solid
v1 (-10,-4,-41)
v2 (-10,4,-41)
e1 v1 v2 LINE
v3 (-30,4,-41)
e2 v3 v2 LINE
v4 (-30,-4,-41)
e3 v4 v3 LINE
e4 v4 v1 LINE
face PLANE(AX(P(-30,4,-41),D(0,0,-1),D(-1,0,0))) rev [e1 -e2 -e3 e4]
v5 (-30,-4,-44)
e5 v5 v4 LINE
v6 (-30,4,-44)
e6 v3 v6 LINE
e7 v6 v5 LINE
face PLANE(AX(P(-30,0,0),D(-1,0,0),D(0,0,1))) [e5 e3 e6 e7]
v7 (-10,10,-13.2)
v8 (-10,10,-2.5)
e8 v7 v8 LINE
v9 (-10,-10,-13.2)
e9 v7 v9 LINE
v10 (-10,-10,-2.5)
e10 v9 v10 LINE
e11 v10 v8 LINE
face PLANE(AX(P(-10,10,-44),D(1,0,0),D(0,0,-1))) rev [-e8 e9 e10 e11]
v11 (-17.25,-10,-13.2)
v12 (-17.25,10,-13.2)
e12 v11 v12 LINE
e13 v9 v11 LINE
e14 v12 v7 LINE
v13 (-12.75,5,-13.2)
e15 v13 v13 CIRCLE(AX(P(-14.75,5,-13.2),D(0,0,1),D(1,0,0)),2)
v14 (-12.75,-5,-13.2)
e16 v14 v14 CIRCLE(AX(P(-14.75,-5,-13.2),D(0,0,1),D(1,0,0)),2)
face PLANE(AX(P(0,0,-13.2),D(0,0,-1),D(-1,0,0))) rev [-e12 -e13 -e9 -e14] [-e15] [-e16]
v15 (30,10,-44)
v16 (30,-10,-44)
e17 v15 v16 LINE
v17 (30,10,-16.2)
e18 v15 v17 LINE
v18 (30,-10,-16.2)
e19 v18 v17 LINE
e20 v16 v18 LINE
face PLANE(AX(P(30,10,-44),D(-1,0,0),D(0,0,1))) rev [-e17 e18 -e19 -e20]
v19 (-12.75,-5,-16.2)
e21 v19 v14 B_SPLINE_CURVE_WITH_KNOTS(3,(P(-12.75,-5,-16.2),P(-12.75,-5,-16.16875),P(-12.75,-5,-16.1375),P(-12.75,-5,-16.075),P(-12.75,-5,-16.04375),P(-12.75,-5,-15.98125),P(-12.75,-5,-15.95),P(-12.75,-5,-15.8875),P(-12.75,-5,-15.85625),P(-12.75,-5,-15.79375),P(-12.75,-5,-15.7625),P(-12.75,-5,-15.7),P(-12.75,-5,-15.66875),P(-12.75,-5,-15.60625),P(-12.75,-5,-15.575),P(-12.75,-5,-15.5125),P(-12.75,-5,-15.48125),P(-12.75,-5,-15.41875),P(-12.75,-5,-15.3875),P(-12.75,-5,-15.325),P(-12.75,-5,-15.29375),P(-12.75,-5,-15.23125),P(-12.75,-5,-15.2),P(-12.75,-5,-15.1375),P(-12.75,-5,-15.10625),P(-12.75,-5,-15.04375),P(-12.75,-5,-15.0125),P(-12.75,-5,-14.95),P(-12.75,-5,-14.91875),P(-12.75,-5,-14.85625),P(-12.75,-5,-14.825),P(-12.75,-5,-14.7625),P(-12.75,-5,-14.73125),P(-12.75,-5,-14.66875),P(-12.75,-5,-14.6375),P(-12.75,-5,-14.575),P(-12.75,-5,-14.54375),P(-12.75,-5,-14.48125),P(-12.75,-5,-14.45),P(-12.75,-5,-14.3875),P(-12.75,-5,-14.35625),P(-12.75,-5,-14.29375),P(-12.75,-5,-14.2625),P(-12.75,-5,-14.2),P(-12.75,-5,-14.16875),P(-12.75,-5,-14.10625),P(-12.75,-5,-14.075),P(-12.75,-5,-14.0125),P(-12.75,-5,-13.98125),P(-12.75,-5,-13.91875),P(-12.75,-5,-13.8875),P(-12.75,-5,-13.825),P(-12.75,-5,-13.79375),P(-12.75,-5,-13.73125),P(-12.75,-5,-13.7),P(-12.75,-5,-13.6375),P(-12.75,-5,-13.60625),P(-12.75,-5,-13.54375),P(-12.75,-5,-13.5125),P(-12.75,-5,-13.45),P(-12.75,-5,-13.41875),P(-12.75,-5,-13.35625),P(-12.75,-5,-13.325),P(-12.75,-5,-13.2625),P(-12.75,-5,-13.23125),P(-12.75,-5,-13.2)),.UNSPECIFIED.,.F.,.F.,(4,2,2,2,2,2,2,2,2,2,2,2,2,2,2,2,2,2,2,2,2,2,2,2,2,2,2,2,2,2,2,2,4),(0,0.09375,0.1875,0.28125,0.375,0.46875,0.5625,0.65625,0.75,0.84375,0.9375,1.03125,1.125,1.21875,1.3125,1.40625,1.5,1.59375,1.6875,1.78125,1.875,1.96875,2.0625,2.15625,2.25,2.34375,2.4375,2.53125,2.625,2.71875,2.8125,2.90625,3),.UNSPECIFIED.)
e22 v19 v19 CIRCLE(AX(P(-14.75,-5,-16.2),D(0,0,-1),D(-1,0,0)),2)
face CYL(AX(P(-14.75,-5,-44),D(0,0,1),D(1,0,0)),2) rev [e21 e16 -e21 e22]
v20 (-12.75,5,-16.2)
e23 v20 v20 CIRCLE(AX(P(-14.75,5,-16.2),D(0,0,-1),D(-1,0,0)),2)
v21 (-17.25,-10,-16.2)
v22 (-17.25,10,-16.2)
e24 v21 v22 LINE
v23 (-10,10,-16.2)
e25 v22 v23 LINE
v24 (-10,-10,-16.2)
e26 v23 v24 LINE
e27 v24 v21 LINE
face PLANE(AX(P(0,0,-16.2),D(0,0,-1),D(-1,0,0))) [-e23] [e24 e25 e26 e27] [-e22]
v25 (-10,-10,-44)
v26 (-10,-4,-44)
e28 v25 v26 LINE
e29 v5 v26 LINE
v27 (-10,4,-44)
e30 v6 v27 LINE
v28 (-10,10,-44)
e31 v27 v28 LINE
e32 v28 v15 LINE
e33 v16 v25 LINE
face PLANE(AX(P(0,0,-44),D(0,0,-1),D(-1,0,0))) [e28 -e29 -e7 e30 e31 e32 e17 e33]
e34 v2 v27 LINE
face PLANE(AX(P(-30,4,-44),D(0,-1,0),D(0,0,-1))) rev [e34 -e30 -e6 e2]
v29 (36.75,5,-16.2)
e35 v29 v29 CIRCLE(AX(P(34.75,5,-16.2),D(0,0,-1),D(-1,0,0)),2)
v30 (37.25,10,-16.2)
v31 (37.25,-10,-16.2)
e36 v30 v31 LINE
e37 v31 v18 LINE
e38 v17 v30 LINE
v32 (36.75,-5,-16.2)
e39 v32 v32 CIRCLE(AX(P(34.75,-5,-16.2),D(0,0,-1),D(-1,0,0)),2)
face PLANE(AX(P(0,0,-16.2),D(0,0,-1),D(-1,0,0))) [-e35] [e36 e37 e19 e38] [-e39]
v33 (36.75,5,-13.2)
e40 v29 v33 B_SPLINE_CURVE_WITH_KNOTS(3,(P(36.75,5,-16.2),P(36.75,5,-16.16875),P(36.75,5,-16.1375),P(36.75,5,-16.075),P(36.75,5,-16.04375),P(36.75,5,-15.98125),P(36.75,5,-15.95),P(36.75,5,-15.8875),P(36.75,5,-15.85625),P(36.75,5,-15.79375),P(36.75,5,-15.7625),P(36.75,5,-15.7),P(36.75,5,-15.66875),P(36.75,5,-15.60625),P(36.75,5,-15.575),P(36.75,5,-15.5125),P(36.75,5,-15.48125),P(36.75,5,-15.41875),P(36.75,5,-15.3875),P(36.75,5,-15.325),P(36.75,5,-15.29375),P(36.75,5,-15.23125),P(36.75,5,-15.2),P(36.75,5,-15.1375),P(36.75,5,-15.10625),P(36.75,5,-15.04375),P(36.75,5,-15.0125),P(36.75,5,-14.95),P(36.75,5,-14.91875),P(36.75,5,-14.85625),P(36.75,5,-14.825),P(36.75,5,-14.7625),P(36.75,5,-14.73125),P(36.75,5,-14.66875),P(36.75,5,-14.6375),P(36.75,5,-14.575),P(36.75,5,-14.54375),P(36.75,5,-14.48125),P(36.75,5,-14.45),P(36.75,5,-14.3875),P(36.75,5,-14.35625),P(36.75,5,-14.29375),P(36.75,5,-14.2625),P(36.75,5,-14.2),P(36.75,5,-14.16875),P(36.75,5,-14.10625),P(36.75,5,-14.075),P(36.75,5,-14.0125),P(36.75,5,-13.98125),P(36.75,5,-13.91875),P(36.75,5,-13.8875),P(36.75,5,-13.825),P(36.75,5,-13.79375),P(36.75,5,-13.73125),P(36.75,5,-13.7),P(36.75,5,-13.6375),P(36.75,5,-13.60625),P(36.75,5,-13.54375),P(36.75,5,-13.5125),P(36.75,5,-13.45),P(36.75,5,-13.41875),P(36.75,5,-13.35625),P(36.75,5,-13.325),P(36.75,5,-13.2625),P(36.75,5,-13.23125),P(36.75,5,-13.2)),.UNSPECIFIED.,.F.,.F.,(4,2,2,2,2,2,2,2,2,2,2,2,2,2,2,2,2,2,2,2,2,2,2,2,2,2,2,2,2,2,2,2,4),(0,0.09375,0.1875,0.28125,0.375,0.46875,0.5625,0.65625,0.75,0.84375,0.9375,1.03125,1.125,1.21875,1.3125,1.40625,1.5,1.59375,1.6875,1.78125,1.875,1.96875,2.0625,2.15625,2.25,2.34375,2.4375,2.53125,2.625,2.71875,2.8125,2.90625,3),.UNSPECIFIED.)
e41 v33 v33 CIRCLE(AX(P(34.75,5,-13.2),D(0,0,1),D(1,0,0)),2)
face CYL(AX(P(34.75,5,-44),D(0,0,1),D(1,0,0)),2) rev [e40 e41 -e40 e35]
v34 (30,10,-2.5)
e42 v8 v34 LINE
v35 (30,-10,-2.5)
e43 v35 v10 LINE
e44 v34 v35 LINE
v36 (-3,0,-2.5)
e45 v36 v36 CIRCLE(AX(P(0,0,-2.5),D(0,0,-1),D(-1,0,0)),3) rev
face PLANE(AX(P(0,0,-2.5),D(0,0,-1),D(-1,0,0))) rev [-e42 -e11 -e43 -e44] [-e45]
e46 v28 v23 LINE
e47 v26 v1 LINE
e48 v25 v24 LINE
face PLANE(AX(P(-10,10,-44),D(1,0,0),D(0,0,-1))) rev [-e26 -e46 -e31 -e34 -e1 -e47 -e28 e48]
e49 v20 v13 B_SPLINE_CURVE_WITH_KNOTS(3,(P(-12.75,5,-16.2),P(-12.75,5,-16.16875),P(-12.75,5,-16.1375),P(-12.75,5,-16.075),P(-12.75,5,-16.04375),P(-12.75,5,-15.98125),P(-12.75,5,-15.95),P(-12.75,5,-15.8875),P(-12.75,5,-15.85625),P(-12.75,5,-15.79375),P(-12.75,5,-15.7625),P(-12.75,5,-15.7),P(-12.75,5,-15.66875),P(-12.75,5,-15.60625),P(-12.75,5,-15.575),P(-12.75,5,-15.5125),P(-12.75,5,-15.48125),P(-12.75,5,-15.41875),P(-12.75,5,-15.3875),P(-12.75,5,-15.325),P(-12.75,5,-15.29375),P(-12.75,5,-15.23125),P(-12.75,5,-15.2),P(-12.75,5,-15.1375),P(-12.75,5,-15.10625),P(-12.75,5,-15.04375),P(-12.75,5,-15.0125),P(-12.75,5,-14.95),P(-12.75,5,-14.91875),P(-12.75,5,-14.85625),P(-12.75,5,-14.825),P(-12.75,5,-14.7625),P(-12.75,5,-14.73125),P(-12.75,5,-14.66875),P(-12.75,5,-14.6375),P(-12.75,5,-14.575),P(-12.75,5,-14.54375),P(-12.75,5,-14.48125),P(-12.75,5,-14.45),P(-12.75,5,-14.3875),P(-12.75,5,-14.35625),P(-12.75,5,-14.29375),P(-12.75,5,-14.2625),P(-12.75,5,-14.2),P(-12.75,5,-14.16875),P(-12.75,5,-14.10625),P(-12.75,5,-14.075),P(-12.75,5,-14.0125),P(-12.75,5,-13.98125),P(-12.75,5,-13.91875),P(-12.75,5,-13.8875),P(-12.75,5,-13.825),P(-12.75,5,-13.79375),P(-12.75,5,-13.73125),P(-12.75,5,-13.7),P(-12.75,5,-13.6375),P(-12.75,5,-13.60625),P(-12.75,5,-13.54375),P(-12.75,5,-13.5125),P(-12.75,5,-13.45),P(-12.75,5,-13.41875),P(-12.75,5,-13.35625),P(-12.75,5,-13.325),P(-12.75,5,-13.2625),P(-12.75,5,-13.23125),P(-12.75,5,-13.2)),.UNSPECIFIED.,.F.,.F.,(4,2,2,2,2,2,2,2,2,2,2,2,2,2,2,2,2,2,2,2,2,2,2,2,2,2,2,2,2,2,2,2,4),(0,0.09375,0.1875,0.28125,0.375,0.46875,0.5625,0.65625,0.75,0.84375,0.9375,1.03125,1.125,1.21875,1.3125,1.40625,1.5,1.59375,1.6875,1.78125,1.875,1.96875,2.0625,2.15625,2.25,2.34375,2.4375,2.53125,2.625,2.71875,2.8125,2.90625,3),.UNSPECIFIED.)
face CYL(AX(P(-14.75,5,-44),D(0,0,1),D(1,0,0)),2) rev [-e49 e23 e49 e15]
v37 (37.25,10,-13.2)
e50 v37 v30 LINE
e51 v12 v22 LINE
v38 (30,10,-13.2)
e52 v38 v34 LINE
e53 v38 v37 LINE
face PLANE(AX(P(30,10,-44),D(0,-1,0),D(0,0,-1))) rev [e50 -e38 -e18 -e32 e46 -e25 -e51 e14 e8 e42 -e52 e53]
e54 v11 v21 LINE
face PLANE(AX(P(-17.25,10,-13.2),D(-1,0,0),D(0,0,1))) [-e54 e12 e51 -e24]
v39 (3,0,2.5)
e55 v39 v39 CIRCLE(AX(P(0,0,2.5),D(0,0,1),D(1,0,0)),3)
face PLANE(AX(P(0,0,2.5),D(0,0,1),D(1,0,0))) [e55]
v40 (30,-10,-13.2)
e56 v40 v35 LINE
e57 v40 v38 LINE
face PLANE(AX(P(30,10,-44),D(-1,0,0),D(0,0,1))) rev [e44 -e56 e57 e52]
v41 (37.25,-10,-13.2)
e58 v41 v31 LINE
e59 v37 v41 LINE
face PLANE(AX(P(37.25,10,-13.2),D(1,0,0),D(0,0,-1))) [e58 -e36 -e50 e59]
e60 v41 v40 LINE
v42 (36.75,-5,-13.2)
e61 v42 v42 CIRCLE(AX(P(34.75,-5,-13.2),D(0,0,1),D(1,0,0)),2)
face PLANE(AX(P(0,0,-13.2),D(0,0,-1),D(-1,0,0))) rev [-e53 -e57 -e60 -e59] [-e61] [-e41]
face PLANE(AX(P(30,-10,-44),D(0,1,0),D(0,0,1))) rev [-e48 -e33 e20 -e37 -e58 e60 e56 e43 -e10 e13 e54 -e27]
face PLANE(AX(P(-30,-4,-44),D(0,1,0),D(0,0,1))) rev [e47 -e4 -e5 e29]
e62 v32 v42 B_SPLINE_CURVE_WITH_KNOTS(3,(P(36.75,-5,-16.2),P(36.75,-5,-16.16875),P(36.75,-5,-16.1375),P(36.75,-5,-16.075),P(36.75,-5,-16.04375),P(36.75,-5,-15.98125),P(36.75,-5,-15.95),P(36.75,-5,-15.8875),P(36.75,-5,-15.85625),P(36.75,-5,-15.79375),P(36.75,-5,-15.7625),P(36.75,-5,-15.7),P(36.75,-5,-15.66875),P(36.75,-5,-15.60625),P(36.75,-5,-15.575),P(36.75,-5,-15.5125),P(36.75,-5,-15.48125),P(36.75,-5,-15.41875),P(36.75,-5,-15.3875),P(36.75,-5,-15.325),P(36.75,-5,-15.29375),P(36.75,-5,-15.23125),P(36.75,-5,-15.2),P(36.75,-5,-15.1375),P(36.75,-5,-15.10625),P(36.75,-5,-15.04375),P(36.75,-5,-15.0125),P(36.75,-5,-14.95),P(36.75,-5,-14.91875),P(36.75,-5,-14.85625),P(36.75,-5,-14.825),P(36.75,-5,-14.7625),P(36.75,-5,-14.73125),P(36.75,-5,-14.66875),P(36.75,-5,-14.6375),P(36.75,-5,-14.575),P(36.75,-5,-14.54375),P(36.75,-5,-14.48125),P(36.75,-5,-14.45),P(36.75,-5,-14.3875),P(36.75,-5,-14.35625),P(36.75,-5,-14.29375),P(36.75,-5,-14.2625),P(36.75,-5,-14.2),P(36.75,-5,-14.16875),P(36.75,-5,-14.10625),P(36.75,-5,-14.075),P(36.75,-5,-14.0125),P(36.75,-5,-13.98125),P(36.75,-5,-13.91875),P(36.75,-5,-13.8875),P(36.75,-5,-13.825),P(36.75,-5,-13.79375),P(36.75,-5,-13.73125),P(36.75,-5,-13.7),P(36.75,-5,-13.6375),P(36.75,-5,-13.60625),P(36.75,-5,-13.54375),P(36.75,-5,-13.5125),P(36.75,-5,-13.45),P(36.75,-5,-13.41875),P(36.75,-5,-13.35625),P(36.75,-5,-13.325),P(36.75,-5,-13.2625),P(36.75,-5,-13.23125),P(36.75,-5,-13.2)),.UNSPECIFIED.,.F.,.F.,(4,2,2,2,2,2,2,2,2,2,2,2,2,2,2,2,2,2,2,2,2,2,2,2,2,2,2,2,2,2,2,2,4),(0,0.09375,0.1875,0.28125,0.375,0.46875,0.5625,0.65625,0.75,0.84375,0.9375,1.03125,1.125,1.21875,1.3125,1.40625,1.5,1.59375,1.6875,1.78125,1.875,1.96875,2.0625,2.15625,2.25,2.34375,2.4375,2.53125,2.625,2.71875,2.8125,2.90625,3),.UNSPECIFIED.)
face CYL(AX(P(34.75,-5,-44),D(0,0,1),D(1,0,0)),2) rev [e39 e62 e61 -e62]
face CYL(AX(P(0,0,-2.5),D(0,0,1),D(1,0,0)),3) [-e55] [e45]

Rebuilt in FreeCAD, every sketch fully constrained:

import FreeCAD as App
import Part
import Sketcher

V = App.Vector

doc = App.newDocument("Part")
body = doc.addObject("PartDesign::Body", "Body")

sketch1 = body.newObject("Sketcher::SketchObject", "Sketch")
sketch1.AttachmentSupport = (doc.getObject("XY_Plane"), [""])
sketch1.MapMode = "FlatFace"
sketch1.addGeometry(Part.Circle(V(0, 0, 0), V(0, 0, 1), 3), False)
sketch1.addConstraint([
    Sketcher.Constraint("Coincident", 0, 3, -1, 1),
    Sketcher.Constraint("Diameter", 0, 6.0),
])
pad1 = body.newObject("PartDesign::Pad", "Pad")
pad1.Profile = sketch1
pad1.Length = 5
pad1.Midplane = True

sketch2 = body.newObject("Sketcher::SketchObject", "Sketch001")
sketch2.AttachmentSupport = (doc.getObject("XY_Plane"), [""])
sketch2.MapMode = "FlatFace"
sketch2.AttachmentOffset = App.Placement(V(0, 0, -2.5), App.Rotation())
sketch2.addGeometry([
    Part.LineSegment(V(30, 10, 0), V(30, -10, 0)),
    Part.LineSegment(V(30, -10, 0), V(-10, -10, 0)),
    Part.LineSegment(V(-10, -10, 0), V(-10, 10, 0)),
    Part.LineSegment(V(-10, 10, 0), V(30, 10, 0)),
], False)
sketch2.addConstraint([
    Sketcher.Constraint("Coincident", 0, 2, 1, 1),
    Sketcher.Constraint("Coincident", 1, 2, 2, 1),
    Sketcher.Constraint("Coincident", 2, 2, 3, 1),
    Sketcher.Constraint("Coincident", 3, 2, 0, 1),
    Sketcher.Constraint("Vertical", 0),
    Sketcher.Constraint("Horizontal", 1),
    Sketcher.Constraint("Vertical", 2),
    Sketcher.Constraint("Horizontal", 3),
    Sketcher.Constraint("DistanceX", 1, 2, 1, 1, 40.0),
    Sketcher.Constraint("DistanceY", 0, 2, 0, 1, 20.0),
    Sketcher.Constraint("DistanceX", -1, 1, 0, 2, 30.0),
    Sketcher.Constraint("DistanceY", 0, 2, -1, 1, 10.0),
])
pad2 = body.newObject("PartDesign::Pad", "Pad001")
pad2.Profile = sketch2
pad2.Length = 41.5
pad2.Reversed = True

sketch3 = body.newObject("Sketcher::SketchObject", "Sketch002")
sketch3.AttachmentSupport = (doc.getObject("XY_Plane"), [""])
sketch3.MapMode = "FlatFace"
sketch3.AttachmentOffset = App.Placement(V(0, 0, -16.2), App.Rotation())
sketch3.addGeometry([
    Part.LineSegment(V(37, 10, 0), V(37, -10, 0)),
    Part.LineSegment(V(37, -10, 0), V(30, -10, 0)),
    Part.LineSegment(V(30, -10, 0), V(30, 10, 0)),
    Part.LineSegment(V(30, 10, 0), V(37, 10, 0)),
    Part.LineSegment(V(-10, 10, 0), V(-10, -10, 0)),
    Part.LineSegment(V(-10, -10, 0), V(-17, -10, 0)),
    Part.LineSegment(V(-17, -10, 0), V(-17, 10, 0)),
    Part.LineSegment(V(-17, 10, 0), V(-10, 10, 0)),
], False)
sketch3.addConstraint([
    Sketcher.Constraint("Coincident", 0, 2, 1, 1),
    Sketcher.Constraint("Coincident", 1, 2, 2, 1),
    Sketcher.Constraint("Coincident", 2, 2, 3, 1),
    Sketcher.Constraint("Coincident", 3, 2, 0, 1),
    Sketcher.Constraint("Coincident", 4, 2, 5, 1),
    Sketcher.Constraint("Coincident", 5, 2, 6, 1),
    Sketcher.Constraint("Coincident", 6, 2, 7, 1),
    Sketcher.Constraint("Coincident", 7, 2, 4, 1),
    Sketcher.Constraint("Vertical", 0),
    Sketcher.Constraint("Horizontal", 1),
    Sketcher.Constraint("Vertical", 2),
    Sketcher.Constraint("Horizontal", 3),
    Sketcher.Constraint("Vertical", 4),
    Sketcher.Constraint("Horizontal", 5),
    Sketcher.Constraint("Vertical", 6),
    Sketcher.Constraint("Horizontal", 7),
    Sketcher.Constraint("Horizontal", 1, 2, 4, 2),
    Sketcher.Constraint("Horizontal", 3, 2, 6, 2),
    Sketcher.Constraint("Equal", 3, 5),
    Sketcher.Constraint("DistanceY", 0, 2, 0, 1, 20.0),
    Sketcher.Constraint("DistanceY", 0, 2, -1, 1, 10.0),
    Sketcher.Constraint("DistanceX", -1, 1, 1, 2, 30.0),
    Sketcher.Constraint("DistanceX", 4, 2, -1, 1, 10.0),
    Sketcher.Constraint("DistanceX", 1, 2, 1, 1, 7.25),
])
pad3 = body.newObject("PartDesign::Pad", "Pad002")
pad3.Profile = sketch3
pad3.Length = 3

sketch4 = body.newObject("Sketcher::SketchObject", "Sketch003")
sketch4.AttachmentSupport = (doc.getObject("XY_Plane"), [""])
sketch4.MapMode = "FlatFace"
sketch4.AttachmentOffset = App.Placement(V(0, 0, -13.2), App.Rotation())
sketch4.addGeometry([
    Part.Circle(V(-14.8, -5, 0), V(0, 0, 1), 2),
    Part.Circle(V(-14.8, 5, 0), V(0, 0, 1), 2),
    Part.Circle(V(34.8, 5, 0), V(0, 0, 1), 2),
    Part.Circle(V(34.8, -5, 0), V(0, 0, 1), 2),
], False)
sketch4.addConstraint([
    Sketcher.Constraint("Equal", 0, 1),
    Sketcher.Constraint("Equal", 1, 2),
    Sketcher.Constraint("Equal", 2, 3),
    Sketcher.Constraint("Symmetric", 0, 3, 1, 3, -1),
    Sketcher.Constraint("Symmetric", 2, 3, 3, 3, -1),
    Sketcher.Constraint("Horizontal", 1, 3, 2, 3),
    Sketcher.Constraint("Diameter", 0, 4.0),
    Sketcher.Constraint("DistanceY", 0, 3, -1, 1, 5.0),
    Sketcher.Constraint("DistanceX", 1, 3, 2, 3, 49.5),
    Sketcher.Constraint("DistanceX", 0, 3, -1, 1, 14.75),
])
pocket1 = body.newObject("PartDesign::Pocket", "Pocket")
pocket1.Profile = sketch4
pocket1.Type = "ThroughAll"

sketch5 = body.newObject("Sketcher::SketchObject", "Sketch004")
sketch5.AttachmentSupport = (doc.getObject("YZ_Plane"), [""])
sketch5.MapMode = "FlatFace"
sketch5.AttachmentOffset = App.Placement(V(0, 0, -10), App.Rotation())
sketch5.addGeometry([
    Part.LineSegment(V(4, -44, 0), V(-4, -44, 0)),
    Part.LineSegment(V(-4, -44, 0), V(-4, -41, 0)),
    Part.LineSegment(V(-4, -41, 0), V(4, -41, 0)),
    Part.LineSegment(V(4, -41, 0), V(4, -44, 0)),
], False)
sketch5.addConstraint([
    Sketcher.Constraint("Coincident", 0, 2, 1, 1),
    Sketcher.Constraint("Coincident", 1, 2, 2, 1),
    Sketcher.Constraint("Coincident", 2, 2, 3, 1),
    Sketcher.Constraint("Coincident", 3, 2, 0, 1),
    Sketcher.Constraint("Horizontal", 0),
    Sketcher.Constraint("Vertical", 1),
    Sketcher.Constraint("Horizontal", 2),
    Sketcher.Constraint("Vertical", 3),
    Sketcher.Constraint("DistanceX", 0, 2, 0, 1, 8.0),
    Sketcher.Constraint("DistanceY", 1, 1, 1, 2, 3.0),
    Sketcher.Constraint("DistanceX", 0, 2, -1, 1, 4.0),
    Sketcher.Constraint("DistanceY", 0, 2, -1, 1, 44.0),
])
pad4 = body.newObject("PartDesign::Pad", "Pad003")
pad4.Profile = sketch5
pad4.Length = 20
pad4.Reversed = True

doc.recompute()
